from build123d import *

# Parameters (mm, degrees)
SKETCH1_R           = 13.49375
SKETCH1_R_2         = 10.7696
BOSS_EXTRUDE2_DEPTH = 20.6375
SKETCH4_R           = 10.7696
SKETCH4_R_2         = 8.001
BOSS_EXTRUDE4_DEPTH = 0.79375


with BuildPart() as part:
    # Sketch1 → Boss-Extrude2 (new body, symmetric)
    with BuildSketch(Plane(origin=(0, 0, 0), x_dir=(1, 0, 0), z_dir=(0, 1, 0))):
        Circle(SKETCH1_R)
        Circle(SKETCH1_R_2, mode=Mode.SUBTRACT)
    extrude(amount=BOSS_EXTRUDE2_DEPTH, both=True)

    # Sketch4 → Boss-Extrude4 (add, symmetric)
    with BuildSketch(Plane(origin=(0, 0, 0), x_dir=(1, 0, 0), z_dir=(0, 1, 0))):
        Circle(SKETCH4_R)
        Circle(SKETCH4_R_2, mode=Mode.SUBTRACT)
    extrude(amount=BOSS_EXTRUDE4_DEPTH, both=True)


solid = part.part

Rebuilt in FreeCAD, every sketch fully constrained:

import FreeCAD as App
import Part
import Sketcher
Q = App.Units.Quantity

doc = App.newDocument("Part")
params = doc.addObject("Spreadsheet::Sheet", "Params")
for row, (alias, value) in enumerate([
    ("sketch1_diameter", "1.0625 in"),
    ("sketch1_diameter2", "0.848 in"),
    ("pad1_length", "1.625 in"),
    ("sketch2_diameter", "0.63 in"),
    ("sketch2_diameter2", "0.848 in"),
    ("pad2_length", "0.0625 in"),
], start=1):
    params.set(f"A{row}", alias)
    params.set(f"B{row}", "=" + value)
    params.setAlias(f"B{row}", alias)

body = doc.addObject("PartDesign::Body", "Body")

# Sketch on XZ plane
sketch1 = body.newObject("Sketcher::SketchObject", "Sketch")
sketch1.AttachmentSupport = (doc.getObject("XZ_Plane"), [""])
sketch1.MapMode = "FlatFace"
sketch1.addGeometry([
    Part.Circle(App.Vector(0, 0, 0), App.Vector(0, 0, 1), 13),
    Part.Circle(App.Vector(0, 0, 0), App.Vector(0, 0, 1), 11),
], False)
sketch1.addConstraint([
    Sketcher.Constraint("Coincident", 0, 3, -1, 1),
    Sketcher.Constraint("Coincident", 1, 3, -1, 1),
    Sketcher.Constraint("Diameter", 0, Q("1.0625 in")),
    Sketcher.Constraint("Diameter", 1, Q("0.848 in")),
])
sketch1.setExpression("Constraints[2]", "Params.sketch1_diameter")
sketch1.setExpression("Constraints[3]", "Params.sketch1_diameter2")
pad1 = body.newObject("PartDesign::Pad", "Pad")
pad1.Profile = sketch1
pad1.setExpression("Length", "Params.pad1_length")
pad1.Midplane = True

# Sketch on XZ plane
sketch2 = body.newObject("Sketcher::SketchObject", "Sketch001")
sketch2.AttachmentSupport = (doc.getObject("XZ_Plane"), [""])
sketch2.MapMode = "FlatFace"
sketch2.addGeometry([
    Part.Circle(App.Vector(0, 0, 0), App.Vector(0, 0, 1), 11),
    Part.Circle(App.Vector(0, 0, 0), App.Vector(0, 0, 1), 8),
], False)
sketch2.addConstraint([
    Sketcher.Constraint("Coincident", 0, 3, -1, 1),
    Sketcher.Constraint("Coincident", 1, 3, -1, 1),
    Sketcher.Constraint("Diameter", 1, Q("0.63 in")),
    Sketcher.Constraint("Diameter", 0, Q("0.848 in")),
])
sketch2.setExpression("Constraints[2]", "Params.sketch2_diameter")
sketch2.setExpression("Constraints[3]", "Params.sketch2_diameter2")
pad2 = body.newObject("PartDesign::Pad", "Pad001")
pad2.Profile = sketch2
pad2.setExpression("Length", "Params.pad2_length")
pad2.Midplane = True

doc.recompute()
